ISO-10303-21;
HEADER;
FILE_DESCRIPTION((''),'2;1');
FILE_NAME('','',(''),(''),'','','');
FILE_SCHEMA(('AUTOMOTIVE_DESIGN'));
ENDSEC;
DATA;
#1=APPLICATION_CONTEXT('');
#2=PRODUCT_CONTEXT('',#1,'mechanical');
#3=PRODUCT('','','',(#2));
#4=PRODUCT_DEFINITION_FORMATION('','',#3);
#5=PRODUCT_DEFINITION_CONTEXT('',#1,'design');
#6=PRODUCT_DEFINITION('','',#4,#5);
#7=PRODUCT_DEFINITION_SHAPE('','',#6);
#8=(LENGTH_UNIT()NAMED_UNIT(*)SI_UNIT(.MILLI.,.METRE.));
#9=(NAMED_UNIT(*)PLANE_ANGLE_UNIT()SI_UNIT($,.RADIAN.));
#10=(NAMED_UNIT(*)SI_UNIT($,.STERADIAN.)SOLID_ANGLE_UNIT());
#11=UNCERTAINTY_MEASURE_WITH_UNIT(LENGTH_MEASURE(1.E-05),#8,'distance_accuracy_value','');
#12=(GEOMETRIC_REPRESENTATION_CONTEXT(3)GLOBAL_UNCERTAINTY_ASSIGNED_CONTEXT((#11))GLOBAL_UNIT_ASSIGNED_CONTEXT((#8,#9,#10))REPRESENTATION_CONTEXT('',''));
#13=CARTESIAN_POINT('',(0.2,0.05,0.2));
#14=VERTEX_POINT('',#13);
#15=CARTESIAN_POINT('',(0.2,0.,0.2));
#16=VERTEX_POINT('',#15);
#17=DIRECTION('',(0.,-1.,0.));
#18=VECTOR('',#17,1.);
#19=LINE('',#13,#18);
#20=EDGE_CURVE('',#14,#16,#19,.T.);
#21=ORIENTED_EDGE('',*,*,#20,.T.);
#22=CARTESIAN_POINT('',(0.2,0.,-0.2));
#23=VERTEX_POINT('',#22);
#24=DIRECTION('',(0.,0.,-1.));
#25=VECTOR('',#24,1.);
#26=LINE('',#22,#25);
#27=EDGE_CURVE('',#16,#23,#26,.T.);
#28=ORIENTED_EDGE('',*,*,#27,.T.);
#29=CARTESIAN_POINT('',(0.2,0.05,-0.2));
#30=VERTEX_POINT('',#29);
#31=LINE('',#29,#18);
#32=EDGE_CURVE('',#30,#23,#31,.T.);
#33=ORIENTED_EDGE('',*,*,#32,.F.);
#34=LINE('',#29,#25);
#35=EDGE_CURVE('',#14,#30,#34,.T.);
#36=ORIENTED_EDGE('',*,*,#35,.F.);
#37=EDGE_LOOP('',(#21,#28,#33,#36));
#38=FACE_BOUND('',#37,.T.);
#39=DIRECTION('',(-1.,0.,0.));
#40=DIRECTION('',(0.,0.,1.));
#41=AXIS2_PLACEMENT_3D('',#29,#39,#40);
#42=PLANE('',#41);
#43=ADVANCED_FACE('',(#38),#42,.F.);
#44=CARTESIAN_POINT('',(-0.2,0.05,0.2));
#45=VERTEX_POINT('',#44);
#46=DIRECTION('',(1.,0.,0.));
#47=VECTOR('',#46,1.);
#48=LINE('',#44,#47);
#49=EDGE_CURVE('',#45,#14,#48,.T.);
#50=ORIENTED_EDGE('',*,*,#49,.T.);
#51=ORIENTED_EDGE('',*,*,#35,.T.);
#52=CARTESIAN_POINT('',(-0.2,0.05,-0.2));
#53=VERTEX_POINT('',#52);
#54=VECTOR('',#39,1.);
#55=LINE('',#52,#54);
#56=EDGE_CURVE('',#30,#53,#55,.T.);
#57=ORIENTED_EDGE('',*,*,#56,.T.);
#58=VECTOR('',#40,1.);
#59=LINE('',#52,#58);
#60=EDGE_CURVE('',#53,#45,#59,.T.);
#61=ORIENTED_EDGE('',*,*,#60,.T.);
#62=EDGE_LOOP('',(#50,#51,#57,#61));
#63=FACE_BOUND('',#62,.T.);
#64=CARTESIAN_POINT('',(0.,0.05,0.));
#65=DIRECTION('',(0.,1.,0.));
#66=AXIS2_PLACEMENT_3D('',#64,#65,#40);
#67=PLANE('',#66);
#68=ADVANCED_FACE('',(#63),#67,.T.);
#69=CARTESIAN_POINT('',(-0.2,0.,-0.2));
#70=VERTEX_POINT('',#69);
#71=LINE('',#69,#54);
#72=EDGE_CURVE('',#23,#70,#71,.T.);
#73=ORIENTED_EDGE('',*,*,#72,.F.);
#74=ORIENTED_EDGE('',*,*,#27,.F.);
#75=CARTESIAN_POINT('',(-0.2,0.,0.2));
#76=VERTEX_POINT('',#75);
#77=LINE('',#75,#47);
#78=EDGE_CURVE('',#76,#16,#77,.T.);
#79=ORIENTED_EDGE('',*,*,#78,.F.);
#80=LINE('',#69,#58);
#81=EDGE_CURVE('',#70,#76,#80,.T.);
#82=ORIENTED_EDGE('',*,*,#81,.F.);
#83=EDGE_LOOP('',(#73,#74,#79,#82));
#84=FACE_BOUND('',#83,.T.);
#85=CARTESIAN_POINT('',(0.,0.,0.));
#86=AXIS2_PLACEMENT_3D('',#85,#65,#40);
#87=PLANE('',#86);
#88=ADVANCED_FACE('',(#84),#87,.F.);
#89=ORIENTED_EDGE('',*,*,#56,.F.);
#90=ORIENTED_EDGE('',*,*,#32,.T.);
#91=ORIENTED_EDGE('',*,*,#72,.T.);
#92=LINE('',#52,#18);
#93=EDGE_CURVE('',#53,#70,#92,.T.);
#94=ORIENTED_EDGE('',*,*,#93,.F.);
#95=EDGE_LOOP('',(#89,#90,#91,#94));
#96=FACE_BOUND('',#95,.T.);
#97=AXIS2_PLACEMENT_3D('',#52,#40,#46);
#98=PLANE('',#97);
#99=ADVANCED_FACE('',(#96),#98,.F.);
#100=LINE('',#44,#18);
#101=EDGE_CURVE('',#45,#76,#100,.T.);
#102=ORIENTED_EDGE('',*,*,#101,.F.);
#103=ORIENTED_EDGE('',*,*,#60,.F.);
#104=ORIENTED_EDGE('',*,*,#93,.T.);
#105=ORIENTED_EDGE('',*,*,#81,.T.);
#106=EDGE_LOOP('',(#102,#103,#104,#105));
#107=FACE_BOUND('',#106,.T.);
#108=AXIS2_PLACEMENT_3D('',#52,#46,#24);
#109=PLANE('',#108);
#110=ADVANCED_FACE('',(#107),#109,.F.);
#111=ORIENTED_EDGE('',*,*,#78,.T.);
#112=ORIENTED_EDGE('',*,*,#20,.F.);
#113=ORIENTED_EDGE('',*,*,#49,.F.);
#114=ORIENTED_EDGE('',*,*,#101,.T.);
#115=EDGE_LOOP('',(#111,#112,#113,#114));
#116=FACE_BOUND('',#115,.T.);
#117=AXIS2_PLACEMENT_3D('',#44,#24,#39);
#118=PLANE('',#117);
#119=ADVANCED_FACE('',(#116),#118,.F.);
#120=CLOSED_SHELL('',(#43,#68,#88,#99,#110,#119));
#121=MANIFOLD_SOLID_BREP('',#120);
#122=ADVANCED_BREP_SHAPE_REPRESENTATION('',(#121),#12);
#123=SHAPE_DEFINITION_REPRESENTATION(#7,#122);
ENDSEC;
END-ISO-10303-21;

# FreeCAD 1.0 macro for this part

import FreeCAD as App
import Part
import Sketcher
Q = App.Units.Quantity


def add_polygon(sketch, points):
    """Adds a closed chain of lines whose ends are joined by coincident constraints."""
    first, n = sketch.GeometryCount, len(points)
    for a, b in zip(points, points[1:] + points[:1]):
        sketch.addGeometry(Part.LineSegment(App.Vector(*a, 0), App.Vector(*b, 0)), False)
    for i in range(n):
        sketch.addConstraint(Sketcher.Constraint("Coincident", first + i, 2, first + (i + 1) % n, 1))

doc = App.newDocument("Part")
body = doc.addObject("PartDesign::Body", "Body")

sketch1 = doc.addObject("Sketcher::SketchObject", "Sketch")
body.addObject(sketch1)
sketch1.AttachmentSupport = (doc.XZ_Plane, [""])
sketch1.MapMode = "FlatFace"
add_polygon(sketch1, [(-0.2, -0.2), (-0.2, 0.2), (0.2, 0.2), (0.2, -0.2)])
sketch1.addConstraint(Sketcher.Constraint("Vertical", 0))
sketch1.addConstraint(Sketcher.Constraint("Horizontal", 1))
sketch1.addConstraint(Sketcher.Constraint("Vertical", 2))
sketch1.addConstraint(Sketcher.Constraint("Horizontal", 3))
sketch1.addConstraint(Sketcher.Constraint("Symmetric", 0, 2, 2, 2, -1, 1))
sketch1.addConstraint(Sketcher.Constraint("Equal", 3, 0))
sketch1.addConstraint(Sketcher.Constraint("DistanceX", 1, 1, 1, 2, Q("0.4 mm")))
pad1 = doc.addObject("PartDesign::Pad", "Pad")
body.addObject(pad1)
pad1.Profile = sketch1
pad1.Length = 0.05
pad1.Reversed = True

doc.recompute()
